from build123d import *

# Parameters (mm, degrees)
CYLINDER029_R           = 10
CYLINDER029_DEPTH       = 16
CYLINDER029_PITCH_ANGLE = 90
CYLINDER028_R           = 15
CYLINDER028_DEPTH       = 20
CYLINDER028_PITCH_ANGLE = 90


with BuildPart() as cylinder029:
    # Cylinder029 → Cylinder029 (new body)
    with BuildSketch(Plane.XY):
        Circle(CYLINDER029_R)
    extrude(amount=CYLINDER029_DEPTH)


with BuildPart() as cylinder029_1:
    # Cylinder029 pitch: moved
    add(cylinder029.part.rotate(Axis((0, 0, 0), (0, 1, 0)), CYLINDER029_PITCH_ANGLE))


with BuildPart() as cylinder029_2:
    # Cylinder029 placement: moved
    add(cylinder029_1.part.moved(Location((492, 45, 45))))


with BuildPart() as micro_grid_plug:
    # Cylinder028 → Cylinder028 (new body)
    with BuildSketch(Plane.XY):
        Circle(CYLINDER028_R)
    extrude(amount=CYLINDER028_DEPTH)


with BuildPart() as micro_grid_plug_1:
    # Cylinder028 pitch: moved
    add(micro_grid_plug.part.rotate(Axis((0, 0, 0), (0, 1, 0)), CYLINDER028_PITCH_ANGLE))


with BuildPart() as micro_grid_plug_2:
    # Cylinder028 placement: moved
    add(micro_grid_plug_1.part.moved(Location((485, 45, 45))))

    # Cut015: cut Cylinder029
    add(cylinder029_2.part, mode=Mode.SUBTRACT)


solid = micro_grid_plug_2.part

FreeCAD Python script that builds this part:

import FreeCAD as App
import Part
import Sketcher

V = App.Vector
Q = App.Units.Quantity

doc = App.newDocument("Part")
body = doc.addObject("PartDesign::Body", "Body")

sketch1 = doc.addObject("Sketcher::SketchObject", "Sketch")
body.addObject(sketch1)
sketch1.AttachmentSupport = (doc.XY_Plane, [""])
sketch1.MapMode = "FlatFace"
sketch1.addGeometry(Part.Circle(V(0, 0, 0), V(0, 0, 1), 10), False)
sketch1.addConstraint([
    Sketcher.Constraint("Coincident", 0, 3, -1, 1),
    Sketcher.Constraint("Diameter", 0, Q("20 mm")),
])
pad1 = doc.addObject("PartDesign::Pad", "Pad")
body.addObject(pad1)
pad1.Profile = sketch1
pad1.Length = 16
body2 = doc.addObject("PartDesign::Body", "Body001")
doc.recompute()

body.Placement = App.Placement(V(0, 0, 0), App.Rotation(V(0, 1, 0), 90))
boolean = doc.addObject("PartDesign::Boolean", "Boolean")
body2.addObject(boolean)
boolean.Type = "Fuse"
boolean.addObjects([body])
body3 = doc.addObject("PartDesign::Body", "Body002")
doc.recompute()

body2.Placement = App.Placement(V(492, 45, 45), App.Rotation(V(0, 0, 1), 0))
boolean2 = doc.addObject("PartDesign::Boolean", "Boolean001")
body3.addObject(boolean2)
boolean2.Type = "Fuse"
boolean2.addObjects([body2])
body4 = doc.addObject("PartDesign::Body", "Body003")

sketch2 = doc.addObject("Sketcher::SketchObject", "Sketch001")
body4.addObject(sketch2)
sketch2.AttachmentSupport = (doc.getObject("XY_Plane003"), [""])
sketch2.MapMode = "FlatFace"
sketch2.addGeometry(Part.Circle(V(0, 0, 0), V(0, 0, 1), 15), False)
sketch2.addConstraint([
    Sketcher.Constraint("Coincident", 0, 3, -1, 1),
    Sketcher.Constraint("Diameter", 0, Q("30 mm")),
])
pad2 = doc.addObject("PartDesign::Pad", "Pad001")
body4.addObject(pad2)
pad2.Profile = sketch2
pad2.Length = 20
body5 = doc.addObject("PartDesign::Body", "Body004")
doc.recompute()

body4.Placement = App.Placement(V(0, 0, 0), App.Rotation(V(0, 1, 0), 90))
boolean3 = doc.addObject("PartDesign::Boolean", "Boolean002")
body5.addObject(boolean3)
boolean3.Type = "Fuse"
boolean3.addObjects([body4])
body6 = doc.addObject("PartDesign::Body", "Body005")
doc.recompute()

body5.Placement = App.Placement(V(485, 45, 45), App.Rotation(V(0, 0, 1), 0))
boolean4 = doc.addObject("PartDesign::Boolean", "Boolean003")
body6.addObject(boolean4)
boolean4.Type = "Fuse"
boolean4.addObjects([body5])
doc.recompute()

boolean5 = doc.addObject("PartDesign::Boolean", "Boolean004")
body6.addObject(boolean5)
boolean5.Type = "Cut"
boolean5.addObjects([body3])

doc.recompute()
